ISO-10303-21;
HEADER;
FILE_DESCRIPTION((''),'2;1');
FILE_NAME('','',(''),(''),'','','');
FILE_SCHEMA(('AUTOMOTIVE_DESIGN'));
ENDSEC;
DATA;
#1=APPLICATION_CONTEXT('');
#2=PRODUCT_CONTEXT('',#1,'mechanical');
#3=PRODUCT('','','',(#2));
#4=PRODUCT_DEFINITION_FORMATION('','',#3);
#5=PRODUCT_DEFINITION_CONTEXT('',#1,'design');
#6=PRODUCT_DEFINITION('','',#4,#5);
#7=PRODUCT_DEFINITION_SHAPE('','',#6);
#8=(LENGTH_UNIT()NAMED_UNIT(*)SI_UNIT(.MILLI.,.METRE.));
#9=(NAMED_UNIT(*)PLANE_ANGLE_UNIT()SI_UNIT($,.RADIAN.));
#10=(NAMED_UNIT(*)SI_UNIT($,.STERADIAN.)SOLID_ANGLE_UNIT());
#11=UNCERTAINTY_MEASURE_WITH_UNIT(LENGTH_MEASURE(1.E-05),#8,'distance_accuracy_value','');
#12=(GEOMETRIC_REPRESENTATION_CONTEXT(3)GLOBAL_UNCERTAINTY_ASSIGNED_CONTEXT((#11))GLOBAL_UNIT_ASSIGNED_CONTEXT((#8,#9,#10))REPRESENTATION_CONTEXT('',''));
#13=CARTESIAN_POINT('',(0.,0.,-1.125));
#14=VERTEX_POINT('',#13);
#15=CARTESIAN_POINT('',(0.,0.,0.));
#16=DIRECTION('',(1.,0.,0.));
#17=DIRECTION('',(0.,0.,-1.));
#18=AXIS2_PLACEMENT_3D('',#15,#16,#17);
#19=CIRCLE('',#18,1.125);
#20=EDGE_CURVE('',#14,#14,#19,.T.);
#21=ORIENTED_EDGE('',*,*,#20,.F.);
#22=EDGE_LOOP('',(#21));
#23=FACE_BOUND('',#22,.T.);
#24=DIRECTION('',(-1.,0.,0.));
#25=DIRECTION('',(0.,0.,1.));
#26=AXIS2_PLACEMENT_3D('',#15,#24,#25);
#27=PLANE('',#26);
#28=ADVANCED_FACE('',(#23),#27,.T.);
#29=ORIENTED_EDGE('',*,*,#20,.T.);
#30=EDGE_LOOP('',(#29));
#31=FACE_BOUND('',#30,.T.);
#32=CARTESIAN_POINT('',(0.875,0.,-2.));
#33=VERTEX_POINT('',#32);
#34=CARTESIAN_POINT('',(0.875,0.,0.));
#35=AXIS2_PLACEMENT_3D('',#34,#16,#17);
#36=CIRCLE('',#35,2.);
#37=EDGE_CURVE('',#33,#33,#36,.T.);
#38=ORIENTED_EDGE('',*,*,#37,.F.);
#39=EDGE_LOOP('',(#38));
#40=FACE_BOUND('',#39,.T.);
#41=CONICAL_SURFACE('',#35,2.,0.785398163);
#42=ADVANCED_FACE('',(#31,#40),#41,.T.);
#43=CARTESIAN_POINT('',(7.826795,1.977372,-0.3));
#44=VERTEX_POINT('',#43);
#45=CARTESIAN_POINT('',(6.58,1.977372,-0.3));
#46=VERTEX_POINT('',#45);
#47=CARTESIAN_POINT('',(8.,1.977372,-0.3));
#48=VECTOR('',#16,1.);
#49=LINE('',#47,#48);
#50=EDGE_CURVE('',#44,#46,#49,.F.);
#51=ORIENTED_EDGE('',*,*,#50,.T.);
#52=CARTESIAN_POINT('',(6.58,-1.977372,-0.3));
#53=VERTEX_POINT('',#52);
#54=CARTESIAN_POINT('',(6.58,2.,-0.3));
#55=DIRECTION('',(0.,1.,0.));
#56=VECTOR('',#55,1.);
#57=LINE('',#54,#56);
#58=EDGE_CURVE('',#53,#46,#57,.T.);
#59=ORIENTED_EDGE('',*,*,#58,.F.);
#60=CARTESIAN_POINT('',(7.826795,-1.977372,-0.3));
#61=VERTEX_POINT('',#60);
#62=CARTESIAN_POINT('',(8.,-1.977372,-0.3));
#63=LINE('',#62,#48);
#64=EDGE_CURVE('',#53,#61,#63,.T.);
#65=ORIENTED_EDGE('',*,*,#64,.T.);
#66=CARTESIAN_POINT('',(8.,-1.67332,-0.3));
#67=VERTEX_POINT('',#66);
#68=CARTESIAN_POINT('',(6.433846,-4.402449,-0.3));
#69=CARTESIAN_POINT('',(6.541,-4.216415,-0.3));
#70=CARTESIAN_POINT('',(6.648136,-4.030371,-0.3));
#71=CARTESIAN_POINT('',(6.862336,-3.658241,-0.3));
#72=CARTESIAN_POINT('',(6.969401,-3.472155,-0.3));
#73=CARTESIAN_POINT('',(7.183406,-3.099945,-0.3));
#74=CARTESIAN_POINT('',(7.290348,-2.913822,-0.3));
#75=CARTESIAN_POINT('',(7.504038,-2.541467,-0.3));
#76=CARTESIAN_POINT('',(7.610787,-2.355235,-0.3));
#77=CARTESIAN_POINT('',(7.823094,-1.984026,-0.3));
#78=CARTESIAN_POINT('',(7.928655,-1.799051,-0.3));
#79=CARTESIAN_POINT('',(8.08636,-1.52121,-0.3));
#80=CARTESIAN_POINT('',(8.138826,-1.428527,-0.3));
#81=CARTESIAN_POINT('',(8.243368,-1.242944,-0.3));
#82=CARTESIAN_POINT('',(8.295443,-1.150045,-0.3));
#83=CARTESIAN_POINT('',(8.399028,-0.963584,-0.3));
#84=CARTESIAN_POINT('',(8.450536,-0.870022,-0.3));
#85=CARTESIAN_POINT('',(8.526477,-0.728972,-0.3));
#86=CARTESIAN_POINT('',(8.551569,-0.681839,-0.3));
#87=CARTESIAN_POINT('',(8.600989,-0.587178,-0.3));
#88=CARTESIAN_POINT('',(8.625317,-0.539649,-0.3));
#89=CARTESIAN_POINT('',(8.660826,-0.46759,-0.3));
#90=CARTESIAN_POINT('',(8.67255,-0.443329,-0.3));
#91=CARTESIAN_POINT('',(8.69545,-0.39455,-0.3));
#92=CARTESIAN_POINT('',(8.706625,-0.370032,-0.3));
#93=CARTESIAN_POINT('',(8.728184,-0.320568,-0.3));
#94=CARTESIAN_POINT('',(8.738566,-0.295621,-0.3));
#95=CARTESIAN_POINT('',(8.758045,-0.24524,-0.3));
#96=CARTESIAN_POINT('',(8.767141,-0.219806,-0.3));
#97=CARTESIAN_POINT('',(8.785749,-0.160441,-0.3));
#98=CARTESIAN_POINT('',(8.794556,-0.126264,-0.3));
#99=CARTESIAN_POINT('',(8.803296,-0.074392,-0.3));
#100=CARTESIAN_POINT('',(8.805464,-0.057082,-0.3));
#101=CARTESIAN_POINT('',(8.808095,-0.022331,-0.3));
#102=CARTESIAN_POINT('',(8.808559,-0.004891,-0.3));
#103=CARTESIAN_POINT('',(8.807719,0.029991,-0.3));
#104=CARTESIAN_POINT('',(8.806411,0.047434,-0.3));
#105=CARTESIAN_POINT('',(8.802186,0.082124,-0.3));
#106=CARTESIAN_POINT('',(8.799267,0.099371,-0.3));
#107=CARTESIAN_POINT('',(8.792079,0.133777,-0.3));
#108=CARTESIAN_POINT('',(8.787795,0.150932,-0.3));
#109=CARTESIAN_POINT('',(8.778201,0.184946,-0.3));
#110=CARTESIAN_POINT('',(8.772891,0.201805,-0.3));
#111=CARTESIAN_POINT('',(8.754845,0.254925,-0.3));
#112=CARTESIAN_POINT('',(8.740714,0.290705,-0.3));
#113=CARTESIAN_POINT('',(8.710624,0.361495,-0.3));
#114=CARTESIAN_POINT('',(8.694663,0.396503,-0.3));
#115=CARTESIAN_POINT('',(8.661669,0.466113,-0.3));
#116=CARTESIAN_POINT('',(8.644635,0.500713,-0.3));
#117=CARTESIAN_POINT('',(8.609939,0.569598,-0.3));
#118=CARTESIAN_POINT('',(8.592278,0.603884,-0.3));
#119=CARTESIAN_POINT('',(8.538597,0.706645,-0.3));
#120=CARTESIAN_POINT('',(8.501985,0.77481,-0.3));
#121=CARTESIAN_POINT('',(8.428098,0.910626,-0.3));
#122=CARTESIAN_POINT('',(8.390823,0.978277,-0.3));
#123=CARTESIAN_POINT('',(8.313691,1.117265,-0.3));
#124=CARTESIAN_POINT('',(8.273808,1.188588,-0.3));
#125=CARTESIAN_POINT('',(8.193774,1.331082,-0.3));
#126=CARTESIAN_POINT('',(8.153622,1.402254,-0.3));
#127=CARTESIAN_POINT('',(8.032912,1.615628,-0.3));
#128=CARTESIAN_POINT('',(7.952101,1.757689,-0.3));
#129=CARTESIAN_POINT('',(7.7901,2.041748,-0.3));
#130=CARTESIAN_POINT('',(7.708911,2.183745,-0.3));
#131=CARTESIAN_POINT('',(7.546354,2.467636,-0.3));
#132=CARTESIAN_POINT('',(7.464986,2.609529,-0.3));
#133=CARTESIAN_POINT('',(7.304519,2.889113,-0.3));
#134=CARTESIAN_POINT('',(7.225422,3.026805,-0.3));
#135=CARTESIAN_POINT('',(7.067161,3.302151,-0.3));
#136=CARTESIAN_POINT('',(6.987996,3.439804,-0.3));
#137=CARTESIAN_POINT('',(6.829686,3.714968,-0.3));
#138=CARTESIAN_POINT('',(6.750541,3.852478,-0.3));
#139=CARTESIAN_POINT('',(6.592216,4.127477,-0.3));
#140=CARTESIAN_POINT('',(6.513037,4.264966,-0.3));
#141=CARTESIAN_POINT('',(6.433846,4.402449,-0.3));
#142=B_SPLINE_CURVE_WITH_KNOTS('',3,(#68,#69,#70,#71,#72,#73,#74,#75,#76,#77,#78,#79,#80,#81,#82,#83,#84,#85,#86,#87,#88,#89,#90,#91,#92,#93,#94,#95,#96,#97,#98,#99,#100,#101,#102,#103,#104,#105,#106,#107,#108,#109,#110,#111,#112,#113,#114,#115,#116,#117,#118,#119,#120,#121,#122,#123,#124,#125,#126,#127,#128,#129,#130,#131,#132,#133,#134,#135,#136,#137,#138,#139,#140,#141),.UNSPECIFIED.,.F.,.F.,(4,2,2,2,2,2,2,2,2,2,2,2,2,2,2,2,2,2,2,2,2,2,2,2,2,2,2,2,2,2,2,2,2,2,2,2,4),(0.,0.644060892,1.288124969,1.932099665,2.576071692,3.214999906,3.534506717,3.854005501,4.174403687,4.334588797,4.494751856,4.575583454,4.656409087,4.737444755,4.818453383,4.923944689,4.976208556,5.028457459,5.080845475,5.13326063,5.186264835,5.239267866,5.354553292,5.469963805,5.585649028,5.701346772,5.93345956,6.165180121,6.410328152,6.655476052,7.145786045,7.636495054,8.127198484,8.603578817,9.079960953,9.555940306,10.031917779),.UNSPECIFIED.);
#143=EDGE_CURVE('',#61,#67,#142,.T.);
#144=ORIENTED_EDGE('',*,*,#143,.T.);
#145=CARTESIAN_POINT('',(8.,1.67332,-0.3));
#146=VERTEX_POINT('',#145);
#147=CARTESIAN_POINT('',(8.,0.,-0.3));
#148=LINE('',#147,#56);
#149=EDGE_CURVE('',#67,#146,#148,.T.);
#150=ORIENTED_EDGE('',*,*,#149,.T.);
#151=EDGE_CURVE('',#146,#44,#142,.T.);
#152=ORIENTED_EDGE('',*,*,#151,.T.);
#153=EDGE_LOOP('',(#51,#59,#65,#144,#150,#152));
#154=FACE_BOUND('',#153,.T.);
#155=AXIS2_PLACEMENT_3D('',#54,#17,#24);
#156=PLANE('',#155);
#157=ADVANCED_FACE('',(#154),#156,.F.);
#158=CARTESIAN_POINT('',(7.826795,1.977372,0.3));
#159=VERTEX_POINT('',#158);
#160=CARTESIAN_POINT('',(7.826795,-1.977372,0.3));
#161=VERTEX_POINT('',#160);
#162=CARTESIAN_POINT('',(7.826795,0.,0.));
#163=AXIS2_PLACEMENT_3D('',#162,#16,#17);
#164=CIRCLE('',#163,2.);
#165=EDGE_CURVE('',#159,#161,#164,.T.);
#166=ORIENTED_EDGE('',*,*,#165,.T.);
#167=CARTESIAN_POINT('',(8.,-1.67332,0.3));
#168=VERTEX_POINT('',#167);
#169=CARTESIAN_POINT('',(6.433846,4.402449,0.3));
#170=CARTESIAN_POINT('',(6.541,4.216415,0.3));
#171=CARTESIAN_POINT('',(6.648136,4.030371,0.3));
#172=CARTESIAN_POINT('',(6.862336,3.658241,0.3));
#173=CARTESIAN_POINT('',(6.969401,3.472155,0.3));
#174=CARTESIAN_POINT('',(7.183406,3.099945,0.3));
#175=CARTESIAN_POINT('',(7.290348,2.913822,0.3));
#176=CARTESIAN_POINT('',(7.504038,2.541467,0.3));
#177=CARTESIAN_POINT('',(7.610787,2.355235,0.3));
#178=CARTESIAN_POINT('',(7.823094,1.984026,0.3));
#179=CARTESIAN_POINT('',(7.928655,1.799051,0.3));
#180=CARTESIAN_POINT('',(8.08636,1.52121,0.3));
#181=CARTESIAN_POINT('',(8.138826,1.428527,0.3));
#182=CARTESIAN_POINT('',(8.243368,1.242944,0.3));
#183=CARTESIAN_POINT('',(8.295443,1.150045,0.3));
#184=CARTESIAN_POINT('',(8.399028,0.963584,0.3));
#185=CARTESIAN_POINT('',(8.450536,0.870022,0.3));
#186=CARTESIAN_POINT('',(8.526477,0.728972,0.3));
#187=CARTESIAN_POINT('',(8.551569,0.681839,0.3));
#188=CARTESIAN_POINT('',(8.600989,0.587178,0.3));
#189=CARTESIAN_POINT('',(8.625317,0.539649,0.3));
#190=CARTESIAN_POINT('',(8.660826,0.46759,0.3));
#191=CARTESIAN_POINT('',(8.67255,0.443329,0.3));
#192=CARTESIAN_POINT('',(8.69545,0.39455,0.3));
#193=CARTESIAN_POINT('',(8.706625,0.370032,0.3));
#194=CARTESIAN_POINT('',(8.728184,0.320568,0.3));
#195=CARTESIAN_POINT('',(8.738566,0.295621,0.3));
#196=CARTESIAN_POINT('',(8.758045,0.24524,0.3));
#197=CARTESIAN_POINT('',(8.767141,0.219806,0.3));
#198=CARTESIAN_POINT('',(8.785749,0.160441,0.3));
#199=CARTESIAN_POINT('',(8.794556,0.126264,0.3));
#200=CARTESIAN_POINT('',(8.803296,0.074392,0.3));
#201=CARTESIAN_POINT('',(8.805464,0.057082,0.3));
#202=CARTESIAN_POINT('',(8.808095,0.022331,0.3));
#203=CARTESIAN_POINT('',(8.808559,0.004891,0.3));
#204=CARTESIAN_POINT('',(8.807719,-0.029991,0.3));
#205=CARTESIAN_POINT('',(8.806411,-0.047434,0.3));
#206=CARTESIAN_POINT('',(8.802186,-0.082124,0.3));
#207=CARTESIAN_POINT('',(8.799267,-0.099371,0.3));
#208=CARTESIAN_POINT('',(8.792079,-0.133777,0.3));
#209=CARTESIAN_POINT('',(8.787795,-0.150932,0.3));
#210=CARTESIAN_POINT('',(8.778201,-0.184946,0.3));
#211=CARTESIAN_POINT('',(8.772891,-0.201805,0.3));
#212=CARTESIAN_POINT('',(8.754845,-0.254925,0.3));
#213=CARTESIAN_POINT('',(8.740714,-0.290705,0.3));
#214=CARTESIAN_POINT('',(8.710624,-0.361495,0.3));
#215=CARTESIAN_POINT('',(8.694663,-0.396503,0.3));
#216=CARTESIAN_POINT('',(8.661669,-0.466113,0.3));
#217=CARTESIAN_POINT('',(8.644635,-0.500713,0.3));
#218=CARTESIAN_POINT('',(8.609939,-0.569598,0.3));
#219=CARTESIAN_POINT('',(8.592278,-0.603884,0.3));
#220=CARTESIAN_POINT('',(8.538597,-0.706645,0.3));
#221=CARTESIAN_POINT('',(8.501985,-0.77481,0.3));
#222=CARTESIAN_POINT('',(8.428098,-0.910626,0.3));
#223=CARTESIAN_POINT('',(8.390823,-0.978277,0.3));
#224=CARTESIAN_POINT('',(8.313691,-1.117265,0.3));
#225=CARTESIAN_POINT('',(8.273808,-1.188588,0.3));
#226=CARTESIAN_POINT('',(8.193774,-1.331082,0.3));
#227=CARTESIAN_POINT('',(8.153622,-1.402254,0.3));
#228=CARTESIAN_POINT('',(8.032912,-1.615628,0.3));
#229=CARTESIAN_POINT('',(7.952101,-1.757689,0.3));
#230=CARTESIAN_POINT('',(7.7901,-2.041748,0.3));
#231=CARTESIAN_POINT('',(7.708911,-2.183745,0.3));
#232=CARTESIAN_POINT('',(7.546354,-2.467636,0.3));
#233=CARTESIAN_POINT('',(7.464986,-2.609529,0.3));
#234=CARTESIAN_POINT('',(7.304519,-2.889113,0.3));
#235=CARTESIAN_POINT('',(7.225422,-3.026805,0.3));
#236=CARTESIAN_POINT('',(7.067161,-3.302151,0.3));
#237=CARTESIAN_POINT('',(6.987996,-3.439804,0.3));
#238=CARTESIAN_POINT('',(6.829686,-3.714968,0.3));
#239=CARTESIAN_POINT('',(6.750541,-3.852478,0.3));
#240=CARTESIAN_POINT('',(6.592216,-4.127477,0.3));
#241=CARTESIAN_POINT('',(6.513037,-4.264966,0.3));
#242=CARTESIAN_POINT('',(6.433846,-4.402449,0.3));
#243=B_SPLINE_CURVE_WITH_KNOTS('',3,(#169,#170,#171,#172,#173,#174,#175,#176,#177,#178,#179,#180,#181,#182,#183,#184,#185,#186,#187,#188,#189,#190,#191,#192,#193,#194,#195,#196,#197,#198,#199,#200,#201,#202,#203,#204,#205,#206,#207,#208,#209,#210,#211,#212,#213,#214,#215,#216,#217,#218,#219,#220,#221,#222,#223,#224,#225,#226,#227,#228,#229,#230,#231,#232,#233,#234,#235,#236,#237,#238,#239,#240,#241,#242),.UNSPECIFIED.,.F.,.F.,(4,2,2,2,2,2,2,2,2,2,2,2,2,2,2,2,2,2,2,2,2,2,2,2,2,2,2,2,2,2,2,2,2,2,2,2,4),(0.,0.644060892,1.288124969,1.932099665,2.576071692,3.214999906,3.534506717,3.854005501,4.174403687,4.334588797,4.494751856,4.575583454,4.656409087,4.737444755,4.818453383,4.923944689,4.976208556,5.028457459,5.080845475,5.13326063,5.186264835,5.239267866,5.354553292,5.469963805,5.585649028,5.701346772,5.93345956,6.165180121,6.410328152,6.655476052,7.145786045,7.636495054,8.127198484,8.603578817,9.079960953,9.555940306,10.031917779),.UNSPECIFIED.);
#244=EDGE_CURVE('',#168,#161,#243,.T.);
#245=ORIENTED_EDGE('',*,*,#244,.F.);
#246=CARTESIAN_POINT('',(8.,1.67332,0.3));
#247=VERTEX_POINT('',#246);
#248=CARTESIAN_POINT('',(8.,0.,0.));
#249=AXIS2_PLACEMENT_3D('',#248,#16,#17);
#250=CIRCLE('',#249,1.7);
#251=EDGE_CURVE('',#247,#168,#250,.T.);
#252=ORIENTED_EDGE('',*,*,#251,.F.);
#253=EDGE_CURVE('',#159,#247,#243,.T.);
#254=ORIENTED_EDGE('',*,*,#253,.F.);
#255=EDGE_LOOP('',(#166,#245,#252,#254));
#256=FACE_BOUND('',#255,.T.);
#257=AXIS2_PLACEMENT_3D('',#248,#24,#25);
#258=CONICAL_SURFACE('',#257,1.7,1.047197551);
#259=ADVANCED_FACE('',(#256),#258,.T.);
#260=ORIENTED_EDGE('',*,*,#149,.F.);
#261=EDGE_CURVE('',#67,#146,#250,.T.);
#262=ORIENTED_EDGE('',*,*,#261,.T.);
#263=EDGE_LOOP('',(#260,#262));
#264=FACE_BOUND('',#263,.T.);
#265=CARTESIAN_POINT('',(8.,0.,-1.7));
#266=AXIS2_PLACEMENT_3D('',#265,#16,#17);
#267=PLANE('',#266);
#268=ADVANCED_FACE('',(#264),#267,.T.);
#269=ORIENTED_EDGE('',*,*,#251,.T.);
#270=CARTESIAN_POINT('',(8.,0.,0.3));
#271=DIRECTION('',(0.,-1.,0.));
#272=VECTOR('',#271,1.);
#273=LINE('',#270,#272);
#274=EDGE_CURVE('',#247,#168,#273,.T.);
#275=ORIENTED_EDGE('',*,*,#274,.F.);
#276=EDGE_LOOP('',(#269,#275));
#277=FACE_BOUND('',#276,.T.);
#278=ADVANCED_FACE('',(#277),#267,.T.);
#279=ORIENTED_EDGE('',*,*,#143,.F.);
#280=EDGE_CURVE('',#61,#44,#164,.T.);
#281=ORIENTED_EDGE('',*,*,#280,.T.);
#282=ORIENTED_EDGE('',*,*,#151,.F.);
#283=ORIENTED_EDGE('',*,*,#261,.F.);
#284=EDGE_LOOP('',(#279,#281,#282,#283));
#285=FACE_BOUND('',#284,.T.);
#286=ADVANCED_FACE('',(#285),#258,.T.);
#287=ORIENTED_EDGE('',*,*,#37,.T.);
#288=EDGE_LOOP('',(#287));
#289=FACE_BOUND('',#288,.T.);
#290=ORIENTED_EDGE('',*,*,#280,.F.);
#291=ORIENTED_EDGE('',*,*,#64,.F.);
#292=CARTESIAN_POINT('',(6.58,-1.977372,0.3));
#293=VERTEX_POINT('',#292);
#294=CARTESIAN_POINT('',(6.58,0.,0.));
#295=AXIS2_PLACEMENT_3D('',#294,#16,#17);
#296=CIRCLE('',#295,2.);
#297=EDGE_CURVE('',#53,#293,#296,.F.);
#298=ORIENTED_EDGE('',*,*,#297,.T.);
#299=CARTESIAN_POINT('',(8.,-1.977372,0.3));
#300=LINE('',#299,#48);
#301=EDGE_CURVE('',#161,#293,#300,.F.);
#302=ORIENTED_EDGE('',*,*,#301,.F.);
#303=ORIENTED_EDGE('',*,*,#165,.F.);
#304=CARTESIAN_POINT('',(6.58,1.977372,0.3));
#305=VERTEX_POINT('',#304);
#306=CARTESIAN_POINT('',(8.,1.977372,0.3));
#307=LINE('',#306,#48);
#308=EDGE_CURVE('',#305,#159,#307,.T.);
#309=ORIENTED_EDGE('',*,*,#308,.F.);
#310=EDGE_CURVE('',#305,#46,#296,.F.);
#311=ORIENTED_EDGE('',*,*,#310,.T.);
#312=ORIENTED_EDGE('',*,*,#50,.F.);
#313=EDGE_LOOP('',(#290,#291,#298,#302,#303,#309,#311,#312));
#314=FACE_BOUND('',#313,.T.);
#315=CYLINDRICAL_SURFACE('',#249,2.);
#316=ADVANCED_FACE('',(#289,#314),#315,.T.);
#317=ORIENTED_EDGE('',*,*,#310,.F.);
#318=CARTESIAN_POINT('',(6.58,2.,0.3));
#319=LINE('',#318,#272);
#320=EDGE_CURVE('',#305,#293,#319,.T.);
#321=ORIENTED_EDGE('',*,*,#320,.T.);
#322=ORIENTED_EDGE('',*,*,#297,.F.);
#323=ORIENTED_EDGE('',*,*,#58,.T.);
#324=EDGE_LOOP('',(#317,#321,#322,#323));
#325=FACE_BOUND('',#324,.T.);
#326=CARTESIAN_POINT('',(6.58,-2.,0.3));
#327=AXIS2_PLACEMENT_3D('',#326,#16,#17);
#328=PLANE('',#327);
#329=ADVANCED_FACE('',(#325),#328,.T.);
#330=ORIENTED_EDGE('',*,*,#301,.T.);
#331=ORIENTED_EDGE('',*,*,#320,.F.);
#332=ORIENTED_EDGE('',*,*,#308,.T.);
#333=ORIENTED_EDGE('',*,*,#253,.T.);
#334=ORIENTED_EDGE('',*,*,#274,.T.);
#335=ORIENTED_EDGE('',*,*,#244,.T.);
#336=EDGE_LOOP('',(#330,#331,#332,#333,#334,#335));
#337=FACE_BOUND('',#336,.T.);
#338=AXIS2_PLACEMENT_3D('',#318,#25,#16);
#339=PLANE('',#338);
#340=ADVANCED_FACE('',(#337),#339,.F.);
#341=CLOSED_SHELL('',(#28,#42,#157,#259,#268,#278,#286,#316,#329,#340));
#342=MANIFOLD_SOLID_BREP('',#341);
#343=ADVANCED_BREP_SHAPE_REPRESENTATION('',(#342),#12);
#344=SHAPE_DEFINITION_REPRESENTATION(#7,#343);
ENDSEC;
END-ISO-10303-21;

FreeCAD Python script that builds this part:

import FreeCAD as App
import Part
import Sketcher
Q = App.Units.Quantity


def add_polygon(sketch, points):
    """Adds a closed chain of lines whose ends are joined by coincident constraints."""
    first, n = sketch.GeometryCount, len(points)
    for a, b in zip(points, points[1:] + points[:1]):
        sketch.addGeometry(Part.LineSegment(App.Vector(*a, 0), App.Vector(*b, 0)), False)
    for i in range(n):
        sketch.addConstraint(Sketcher.Constraint("Coincident", first + i, 2, first + (i + 1) % n, 1))

doc = App.newDocument("Part")
body = doc.addObject("PartDesign::Body", "Body")

sketch1 = body.newObject("Sketcher::SketchObject", "Sketch")
sketch1.AttachmentSupport = (doc.getObject("XZ_Plane"), [""])
sketch1.MapMode = "FlatFace"
add_polygon(sketch1, [(0, -1.12), (0, 0), (8, 0), (8, -1.7), (7.83, -2), (0.88, -2)])
sketch1.addConstraint(Sketcher.Constraint("Vertical", 0))
sketch1.addConstraint(Sketcher.Constraint("Horizontal", 1))
sketch1.addConstraint(Sketcher.Constraint("Vertical", 2))
sketch1.addConstraint(Sketcher.Constraint("Horizontal", 4))
sketch1.addConstraint(Sketcher.Constraint("Coincident", 0, 2, -1, 1))
sketch1.addConstraint(Sketcher.Constraint("DistanceX", 1, 1, 1, 2, 8.0))
sketch1.addConstraint(Sketcher.Constraint("Angle", 3, Q("-120 deg")))
sketch1.addConstraint(Sketcher.Constraint("Angle", 5, Q("135 deg")))
sketch1.addConstraint(Sketcher.Constraint("DistanceY", 2, 2, 2, 1, 1.7))
sketch1.addConstraint(Sketcher.Constraint("DistanceY", 3, 2, -1, 1, 2.0))
sketch1.addConstraint(Sketcher.Constraint("DistanceY", 0, 1, 0, 2, 1.125))
revolution = body.newObject("PartDesign::Revolution", "Revolution")
revolution.Profile = sketch1
revolution.ReferenceAxis = (sketch1, ["H_Axis"])
revolution.Angle = 360

sketch2 = body.newObject("Sketcher::SketchObject", "Sketch001")
sketch2.AttachmentSupport = (doc.getObject("YZ_Plane"), [""])
sketch2.MapMode = "FlatFace"
sketch2.AttachmentOffset = App.Placement(App.Vector(0, 0, 8), App.Rotation())
add_polygon(sketch2, [(2, 0.3), (-2, 0.3), (-2, -0.3), (2, -0.3)])
sketch2.addConstraint(Sketcher.Constraint("Horizontal", 0))
sketch2.addConstraint(Sketcher.Constraint("Vertical", 1))
sketch2.addConstraint(Sketcher.Constraint("Horizontal", 2))
sketch2.addConstraint(Sketcher.Constraint("Vertical", 3))
sketch2.addConstraint(Sketcher.Constraint("Symmetric", 0, 2, 2, 2, -1, 1))
sketch2.addConstraint(Sketcher.Constraint("DistanceX", 0, 2, 0, 1, 4.0))
sketch2.addConstraint(Sketcher.Constraint("DistanceY", 1, 2, 1, 1, 0.6))
pocket1 = body.newObject("PartDesign::Pocket", "Pocket")
pocket1.Profile = sketch2
pocket1.Length = 1.42

doc.recompute()
